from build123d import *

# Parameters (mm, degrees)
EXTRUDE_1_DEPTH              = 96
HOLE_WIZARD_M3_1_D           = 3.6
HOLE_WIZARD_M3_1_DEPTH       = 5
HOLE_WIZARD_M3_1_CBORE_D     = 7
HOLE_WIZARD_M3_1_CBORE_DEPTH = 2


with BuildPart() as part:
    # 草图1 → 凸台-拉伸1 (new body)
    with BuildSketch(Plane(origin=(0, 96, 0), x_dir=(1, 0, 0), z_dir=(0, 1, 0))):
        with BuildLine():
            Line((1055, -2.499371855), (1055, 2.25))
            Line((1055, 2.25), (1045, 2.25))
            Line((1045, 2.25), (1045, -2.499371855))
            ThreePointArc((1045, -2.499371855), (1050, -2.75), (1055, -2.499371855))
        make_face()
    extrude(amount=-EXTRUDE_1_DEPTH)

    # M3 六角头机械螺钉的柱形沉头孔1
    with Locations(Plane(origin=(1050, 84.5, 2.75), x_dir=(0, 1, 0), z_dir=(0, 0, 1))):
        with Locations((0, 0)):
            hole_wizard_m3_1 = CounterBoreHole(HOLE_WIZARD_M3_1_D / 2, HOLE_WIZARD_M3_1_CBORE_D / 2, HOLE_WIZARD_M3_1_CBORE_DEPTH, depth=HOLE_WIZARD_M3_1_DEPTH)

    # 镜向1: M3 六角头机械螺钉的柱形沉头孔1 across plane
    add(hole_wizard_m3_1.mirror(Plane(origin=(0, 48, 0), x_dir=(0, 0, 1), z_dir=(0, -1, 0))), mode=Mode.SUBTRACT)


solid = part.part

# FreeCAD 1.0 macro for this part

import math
import FreeCAD as App
import Part
import Sketcher

V = App.Vector
Q = App.Units.Quantity

doc = App.newDocument("Part")
body = doc.addObject("PartDesign::Body", "Body")

# Sketch on XZ plane
sketch1 = body.newObject("Sketcher::SketchObject", "Sketch")
sketch1.AttachmentSupport = (doc.getObject("XZ_Plane"), [""])
sketch1.MapMode = "FlatFace"
sketch1.AttachmentOffset = App.Placement(V(0, 0, -96), App.Rotation())
sketch1.addGeometry(Part.LineSegment(V(1055, 2.5, 0), V(1055, -2.2, 0)), False)
sketch1.addGeometry(Part.LineSegment(V(1055, -2.2, 0), V(1045, -2.2, 0)), False)
sketch1.addGeometry(Part.LineSegment(V(1045, -2.2, 0), V(1045, 2.5, 0)), False)
sketch1.addGeometry(Part.ArcOfCircle(Part.Circle(V(1050, -47.2, 0), V(0, 0, 1), 50), math.radians(84.26), math.radians(95.74)), False)
sketch1.addConstraint(Sketcher.Constraint("Coincident", 0, 2, 1, 1))
sketch1.addConstraint(Sketcher.Constraint("Coincident", 1, 2, 2, 1))
sketch1.addConstraint(Sketcher.Constraint("Coincident", 2, 2, 3, 2))
sketch1.addConstraint(Sketcher.Constraint("Coincident", 3, 1, 0, 1))
sketch1.addConstraint(Sketcher.Constraint("Vertical", 0))
sketch1.addConstraint(Sketcher.Constraint("Horizontal", 1))
sketch1.addConstraint(Sketcher.Constraint("Vertical", 2))
sketch1.addConstraint(Sketcher.Constraint("Horizontal", 2, 2, 3, 1))
sketch1.addConstraint(Sketcher.Constraint("Radius", 3, Q("50 mm")))
sketch1.addConstraint(Sketcher.Constraint("DistanceX", 1, 2, 1, 1, Q("10 mm")))
sketch1.addConstraint(Sketcher.Constraint("DistanceX", -1, 1, 3, 3, Q("1050 mm")))
sketch1.addConstraint(Sketcher.Constraint("DistanceY", 3, 3, 0, 2, Q("45 mm")))
sketch1.addConstraint(Sketcher.Constraint("DistanceY", 3, 3, -1, 1, Q("47.25 mm")))
pad1 = body.newObject("PartDesign::Pad", "Pad")
pad1.Profile = sketch1
pad1.Length = 96

# Sketch on XY plane
sketch2 = body.newObject("Sketcher::SketchObject", "Sketch001")
sketch2.AttachmentSupport = (doc.getObject("XY_Plane"), [""])
sketch2.MapMode = "FlatFace"
sketch2.AttachmentOffset = App.Placement(V(0, 0, 2.75), App.Rotation())
sketch2.addGeometry(Part.Circle(V(1050, 84.5, 0), V(0, 0, 1), 1.8), False)
sketch2.addConstraint(Sketcher.Constraint("Diameter", 0, Q("3.6 mm")))
sketch2.addConstraint(Sketcher.Constraint("DistanceX", -1, 1, 0, 3, Q("1050 mm")))
sketch2.addConstraint(Sketcher.Constraint("DistanceY", -1, 1, 0, 3, Q("84.5 mm")))
doc.recompute()
hole = body.newObject("PartDesign::Hole", "Hole")
hole.Profile = sketch2
hole.ThreadType = "None"
hole.Diameter = 3.6
hole.DepthType = "Dimension"
hole.Depth = 5
hole.DrillPoint = "Flat"
hole.HoleCutType = "Counterbore"
hole.HoleCutDiameter = 7
hole.HoleCutDepth = 2
doc.recompute()

datumplane = body.newObject("PartDesign::Plane", "DatumPlane")
datumplane.AttachmentSupport = (doc.getObject("XZ_Plane"), [""])
datumplane.MapMode = "FlatFace"
datumplane.AttachmentOffset = App.Placement(V(0, 0, -48), App.Rotation())
mirrored = body.newObject("PartDesign::Mirrored", "Mirrored")
mirrored.Originals = [hole]
mirrored.MirrorPlane = (datumplane, [""])
body.Tip = mirrored

doc.recompute()
